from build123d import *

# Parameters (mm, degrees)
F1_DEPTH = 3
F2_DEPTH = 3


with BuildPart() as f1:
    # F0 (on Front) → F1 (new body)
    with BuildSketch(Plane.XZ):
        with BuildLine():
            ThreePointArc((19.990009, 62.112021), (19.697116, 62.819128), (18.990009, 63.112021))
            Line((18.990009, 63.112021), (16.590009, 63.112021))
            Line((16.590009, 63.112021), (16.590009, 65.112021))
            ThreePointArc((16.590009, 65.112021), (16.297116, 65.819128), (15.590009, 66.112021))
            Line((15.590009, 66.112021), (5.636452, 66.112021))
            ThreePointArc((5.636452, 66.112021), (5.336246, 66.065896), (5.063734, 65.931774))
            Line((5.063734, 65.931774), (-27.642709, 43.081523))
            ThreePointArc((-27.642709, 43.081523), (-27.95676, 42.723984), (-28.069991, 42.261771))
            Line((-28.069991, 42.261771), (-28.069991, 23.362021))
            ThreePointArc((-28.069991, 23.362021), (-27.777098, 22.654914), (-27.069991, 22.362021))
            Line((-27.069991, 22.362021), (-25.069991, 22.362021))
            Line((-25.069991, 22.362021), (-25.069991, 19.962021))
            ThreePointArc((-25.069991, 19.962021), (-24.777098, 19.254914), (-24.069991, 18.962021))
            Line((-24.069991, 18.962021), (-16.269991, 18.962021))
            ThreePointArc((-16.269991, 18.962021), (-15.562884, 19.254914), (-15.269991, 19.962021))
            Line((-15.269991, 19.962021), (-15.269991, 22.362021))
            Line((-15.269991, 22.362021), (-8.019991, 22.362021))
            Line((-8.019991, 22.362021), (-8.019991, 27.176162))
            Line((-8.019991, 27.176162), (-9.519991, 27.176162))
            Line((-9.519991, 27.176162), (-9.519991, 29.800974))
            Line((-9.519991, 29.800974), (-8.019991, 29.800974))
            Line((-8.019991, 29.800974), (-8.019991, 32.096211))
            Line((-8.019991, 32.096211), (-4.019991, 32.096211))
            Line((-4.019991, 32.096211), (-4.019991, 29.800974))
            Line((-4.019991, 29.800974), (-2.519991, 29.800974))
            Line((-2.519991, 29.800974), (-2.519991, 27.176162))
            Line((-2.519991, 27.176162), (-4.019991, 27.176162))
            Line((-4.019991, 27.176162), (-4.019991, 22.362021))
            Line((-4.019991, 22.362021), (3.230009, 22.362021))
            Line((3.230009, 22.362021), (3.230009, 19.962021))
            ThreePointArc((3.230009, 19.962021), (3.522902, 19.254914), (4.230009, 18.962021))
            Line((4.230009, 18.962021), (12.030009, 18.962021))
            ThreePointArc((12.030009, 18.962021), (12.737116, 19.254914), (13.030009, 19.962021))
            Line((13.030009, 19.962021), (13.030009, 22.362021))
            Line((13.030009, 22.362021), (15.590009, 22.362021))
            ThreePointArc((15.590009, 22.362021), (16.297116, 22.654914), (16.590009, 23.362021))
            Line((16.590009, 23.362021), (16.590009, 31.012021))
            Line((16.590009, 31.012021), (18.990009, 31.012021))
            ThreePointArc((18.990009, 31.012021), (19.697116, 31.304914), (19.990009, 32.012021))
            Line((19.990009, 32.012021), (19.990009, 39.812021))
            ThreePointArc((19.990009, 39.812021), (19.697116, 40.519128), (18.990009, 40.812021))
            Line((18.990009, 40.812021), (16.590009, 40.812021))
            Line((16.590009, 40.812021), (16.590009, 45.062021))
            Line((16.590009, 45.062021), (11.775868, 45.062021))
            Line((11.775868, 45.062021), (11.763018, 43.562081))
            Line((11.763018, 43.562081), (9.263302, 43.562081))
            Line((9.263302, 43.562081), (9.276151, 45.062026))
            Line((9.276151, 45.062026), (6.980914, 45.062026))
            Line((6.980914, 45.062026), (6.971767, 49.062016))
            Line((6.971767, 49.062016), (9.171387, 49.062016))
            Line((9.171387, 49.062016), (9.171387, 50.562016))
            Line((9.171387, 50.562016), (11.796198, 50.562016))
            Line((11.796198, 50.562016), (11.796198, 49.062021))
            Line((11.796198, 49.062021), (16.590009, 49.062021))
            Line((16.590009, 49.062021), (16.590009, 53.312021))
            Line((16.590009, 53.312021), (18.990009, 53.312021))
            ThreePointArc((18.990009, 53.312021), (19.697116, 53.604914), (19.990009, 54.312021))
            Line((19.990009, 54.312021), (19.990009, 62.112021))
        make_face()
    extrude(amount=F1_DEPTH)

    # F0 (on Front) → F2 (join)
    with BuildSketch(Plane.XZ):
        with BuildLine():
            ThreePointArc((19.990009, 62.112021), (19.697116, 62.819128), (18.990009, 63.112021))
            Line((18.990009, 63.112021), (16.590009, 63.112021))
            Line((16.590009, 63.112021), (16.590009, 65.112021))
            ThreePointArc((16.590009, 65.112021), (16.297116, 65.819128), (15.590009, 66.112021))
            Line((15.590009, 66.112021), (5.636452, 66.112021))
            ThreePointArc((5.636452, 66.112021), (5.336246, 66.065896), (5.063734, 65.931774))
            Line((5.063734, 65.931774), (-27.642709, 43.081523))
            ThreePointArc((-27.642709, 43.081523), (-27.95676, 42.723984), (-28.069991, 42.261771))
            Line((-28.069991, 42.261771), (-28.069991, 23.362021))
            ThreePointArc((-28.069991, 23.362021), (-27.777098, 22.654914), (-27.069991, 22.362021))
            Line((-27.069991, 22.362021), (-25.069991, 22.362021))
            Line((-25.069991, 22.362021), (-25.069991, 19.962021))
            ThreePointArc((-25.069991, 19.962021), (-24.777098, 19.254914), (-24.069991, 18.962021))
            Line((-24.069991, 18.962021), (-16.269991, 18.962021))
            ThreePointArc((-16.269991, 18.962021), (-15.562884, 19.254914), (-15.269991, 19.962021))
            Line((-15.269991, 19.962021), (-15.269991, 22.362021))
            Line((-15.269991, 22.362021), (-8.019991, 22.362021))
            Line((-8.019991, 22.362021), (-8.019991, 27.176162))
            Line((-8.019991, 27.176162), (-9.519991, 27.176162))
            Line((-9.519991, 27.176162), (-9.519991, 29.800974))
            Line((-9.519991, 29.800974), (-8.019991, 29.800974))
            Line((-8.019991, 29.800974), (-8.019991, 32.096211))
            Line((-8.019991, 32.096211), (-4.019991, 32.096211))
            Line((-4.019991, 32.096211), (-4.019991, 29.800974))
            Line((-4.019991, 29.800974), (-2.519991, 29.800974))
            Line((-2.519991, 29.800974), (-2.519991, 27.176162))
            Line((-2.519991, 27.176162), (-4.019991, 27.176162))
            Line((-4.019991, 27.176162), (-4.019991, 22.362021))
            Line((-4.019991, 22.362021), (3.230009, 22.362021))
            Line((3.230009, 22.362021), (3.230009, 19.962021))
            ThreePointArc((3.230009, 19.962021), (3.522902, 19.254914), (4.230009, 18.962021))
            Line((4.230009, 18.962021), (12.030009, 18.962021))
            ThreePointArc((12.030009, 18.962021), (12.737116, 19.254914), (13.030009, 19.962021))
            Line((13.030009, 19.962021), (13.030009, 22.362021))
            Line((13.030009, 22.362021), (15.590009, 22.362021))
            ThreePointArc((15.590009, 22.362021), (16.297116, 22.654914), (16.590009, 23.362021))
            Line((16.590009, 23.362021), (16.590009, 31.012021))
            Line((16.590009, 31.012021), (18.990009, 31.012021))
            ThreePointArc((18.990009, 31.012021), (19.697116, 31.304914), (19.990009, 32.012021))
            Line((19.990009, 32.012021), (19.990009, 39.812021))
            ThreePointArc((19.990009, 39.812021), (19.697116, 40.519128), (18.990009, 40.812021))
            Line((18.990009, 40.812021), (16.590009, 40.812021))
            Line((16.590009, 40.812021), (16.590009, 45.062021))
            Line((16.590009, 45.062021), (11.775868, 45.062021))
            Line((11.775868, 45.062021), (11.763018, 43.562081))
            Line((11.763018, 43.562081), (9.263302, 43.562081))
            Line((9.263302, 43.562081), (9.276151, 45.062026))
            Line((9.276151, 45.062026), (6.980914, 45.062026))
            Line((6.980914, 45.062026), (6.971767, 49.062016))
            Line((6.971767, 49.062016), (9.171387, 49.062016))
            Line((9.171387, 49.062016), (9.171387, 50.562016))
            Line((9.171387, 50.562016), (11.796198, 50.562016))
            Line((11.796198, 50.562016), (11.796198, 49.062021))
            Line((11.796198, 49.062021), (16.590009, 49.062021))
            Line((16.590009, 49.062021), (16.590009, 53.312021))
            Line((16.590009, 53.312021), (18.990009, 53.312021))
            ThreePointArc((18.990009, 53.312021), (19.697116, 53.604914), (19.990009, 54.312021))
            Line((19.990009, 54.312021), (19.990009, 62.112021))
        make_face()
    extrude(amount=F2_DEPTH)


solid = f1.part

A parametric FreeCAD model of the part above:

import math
import FreeCAD as App
import Part
import Sketcher
from FreeCAD import Vector

doc = App.newDocument("Part")
body = doc.addObject("PartDesign::Body", "Body")

# Sketch on XZ plane
sketch1 = body.newObject("Sketcher::SketchObject", "Sketch")
sketch1.AttachmentSupport = (doc.getObject("XZ_Plane"), [""])
sketch1.MapMode = "FlatFace"
sketch1.addGeometry([
    Part.ArcOfCircle(Part.Circle(Vector(18.99001, 62.112022, 0), Vector(0, 0, 1), 0.999999), math.radians(-0.000043), math.radians(90.000043)),  # 0
    Part.LineSegment(Vector(18.990009, 63.112021, 0), Vector(16.590009, 63.112021, 0)),  # 1
    Part.LineSegment(Vector(16.590009, 63.112021, 0), Vector(16.590009, 65.112021, 0)),  # 2
    Part.ArcOfCircle(Part.Circle(Vector(15.59001, 65.112022, 0), Vector(0, 0, 1), 0.999999), math.radians(-0.000043), math.radians(90.000043)),  # 3
    Part.LineSegment(Vector(15.590009, 66.112021, 0), Vector(5.636452, 66.112021, 0)),  # 4
    Part.ArcOfCircle(Part.Circle(Vector(5.636449, 65.112028, 0), Vector(0, 0, 1), 0.999993), math.radians(89.999826), math.radians(124.940053)),  # 5
    Part.LineSegment(Vector(5.063734, 65.931774, 0), Vector(-27.642709, 43.081523, 0)),  # 6
    Part.ArcOfCircle(Part.Circle(Vector(-27.069993, 42.261772, 0), Vector(0, 0, 1), 0.999998), math.radians(124.939915), math.radians(180.000037)),  # 7
    Part.LineSegment(Vector(-28.069991, 42.261771, 0), Vector(-28.069991, 23.362021, 0)),  # 8
    Part.ArcOfCircle(Part.Circle(Vector(-27.069992, 23.36202, 0), Vector(0, 0, 1), 0.999999), math.radians(179.999957), math.radians(270.000043)),  # 9
    Part.LineSegment(Vector(-27.069991, 22.362021, 0), Vector(-25.069991, 22.362021, 0)),  # 10
    Part.LineSegment(Vector(-25.069991, 22.362021, 0), Vector(-25.069991, 19.962021, 0)),  # 11
    Part.ArcOfCircle(Part.Circle(Vector(-24.069992, 19.96202, 0), Vector(0, 0, 1), 0.999999), math.radians(179.999957), math.radians(270.000043)),  # 12
    Part.LineSegment(Vector(-24.069991, 18.962021, 0), Vector(-16.269991, 18.962021, 0)),  # 13
    Part.ArcOfCircle(Part.Circle(Vector(-16.26999, 19.96202, 0), Vector(0, 0, 1), 0.999999), math.radians(-90.000043), math.radians(0.000043)),  # 14
    Part.LineSegment(Vector(-15.269991, 19.962021, 0), Vector(-15.269991, 22.362021, 0)),  # 15
    Part.LineSegment(Vector(-15.269991, 22.362021, 0), Vector(-8.019991, 22.362021, 0)),  # 16
    Part.LineSegment(Vector(-8.019991, 22.362021, 0), Vector(-8.019991, 27.176162, 0)),  # 17
    Part.LineSegment(Vector(-8.019991, 27.176162, 0), Vector(-9.519991, 27.176162, 0)),  # 18
    Part.LineSegment(Vector(-9.519991, 27.176162, 0), Vector(-9.519991, 29.800974, 0)),  # 19
    Part.LineSegment(Vector(-9.519991, 29.800974, 0), Vector(-8.019991, 29.800974, 0)),  # 20
    Part.LineSegment(Vector(-8.019991, 29.800974, 0), Vector(-8.019991, 32.096211, 0)),  # 21
    Part.LineSegment(Vector(-8.019991, 32.096211, 0), Vector(-4.019991, 32.096211, 0)),  # 22
    Part.LineSegment(Vector(-4.019991, 32.096211, 0), Vector(-4.019991, 29.800974, 0)),  # 23
    Part.LineSegment(Vector(-4.019991, 29.800974, 0), Vector(-2.519991, 29.800974, 0)),  # 24
    Part.LineSegment(Vector(-2.519991, 29.800974, 0), Vector(-2.519991, 27.176162, 0)),  # 25
    Part.LineSegment(Vector(-2.519991, 27.176162, 0), Vector(-4.019991, 27.176162, 0)),  # 26
    Part.LineSegment(Vector(-4.019991, 27.176162, 0), Vector(-4.019991, 22.362021, 0)),  # 27
    Part.LineSegment(Vector(-4.019991, 22.362021, 0), Vector(3.230009, 22.362021, 0)),  # 28
    Part.LineSegment(Vector(3.230009, 22.362021, 0), Vector(3.230009, 19.962021, 0)),  # 29
    Part.ArcOfCircle(Part.Circle(Vector(4.230008, 19.96202, 0), Vector(0, 0, 1), 0.999999), math.radians(179.999957), math.radians(270.000043)),  # 30
    Part.LineSegment(Vector(4.230009, 18.962021, 0), Vector(12.030009, 18.962021, 0)),  # 31
    Part.ArcOfCircle(Part.Circle(Vector(12.03001, 19.96202, 0), Vector(0, 0, 1), 0.999999), math.radians(-90.000043), math.radians(0.000043)),  # 32
    Part.LineSegment(Vector(13.030009, 19.962021, 0), Vector(13.030009, 22.362021, 0)),  # 33
    Part.LineSegment(Vector(13.030009, 22.362021, 0), Vector(15.590009, 22.362021, 0)),  # 34
    Part.ArcOfCircle(Part.Circle(Vector(15.59001, 23.36202, 0), Vector(0, 0, 1), 0.999999), math.radians(-90.000043), math.radians(0.000043)),  # 35
    Part.LineSegment(Vector(16.590009, 23.362021, 0), Vector(16.590009, 31.012021, 0)),  # 36
    Part.LineSegment(Vector(16.590009, 31.012021, 0), Vector(18.990009, 31.012021, 0)),  # 37
    Part.ArcOfCircle(Part.Circle(Vector(18.99001, 32.01202, 0), Vector(0, 0, 1), 0.999999), math.radians(-90.000043), math.radians(0.000043)),  # 38
    Part.LineSegment(Vector(19.990009, 32.012021, 0), Vector(19.990009, 39.812021, 0)),  # 39
    Part.ArcOfCircle(Part.Circle(Vector(18.99001, 39.812022, 0), Vector(0, 0, 1), 0.999999), math.radians(-0.000043), math.radians(90.000043)),  # 40
    Part.LineSegment(Vector(18.990009, 40.812021, 0), Vector(16.590009, 40.812021, 0)),  # 41
    Part.LineSegment(Vector(16.590009, 40.812021, 0), Vector(16.590009, 45.062021, 0)),  # 42
    Part.LineSegment(Vector(16.590009, 45.062021, 0), Vector(11.775868, 45.062021, 0)),  # 43
    Part.LineSegment(Vector(11.775868, 45.062021, 0), Vector(11.763018, 43.562081, 0)),  # 44
    Part.LineSegment(Vector(11.763018, 43.562081, 0), Vector(9.263302, 43.562081, 0)),  # 45
    Part.LineSegment(Vector(9.263302, 43.562081, 0), Vector(9.276151, 45.062026, 0)),  # 46
    Part.LineSegment(Vector(9.276151, 45.062026, 0), Vector(6.980914, 45.062026, 0)),  # 47
    Part.LineSegment(Vector(6.980914, 45.062026, 0), Vector(6.971767, 49.062016, 0)),  # 48
    Part.LineSegment(Vector(6.971767, 49.062016, 0), Vector(9.171387, 49.062016, 0)),  # 49
    Part.LineSegment(Vector(9.171387, 49.062016, 0), Vector(9.171387, 50.562016, 0)),  # 50
    Part.LineSegment(Vector(9.171387, 50.562016, 0), Vector(11.796198, 50.562016, 0)),  # 51
    Part.LineSegment(Vector(11.796198, 50.562016, 0), Vector(11.796198, 49.062021, 0)),  # 52
    Part.LineSegment(Vector(11.796198, 49.062021, 0), Vector(16.590009, 49.062021, 0)),  # 53
    Part.LineSegment(Vector(16.590009, 49.062021, 0), Vector(16.590009, 53.312021, 0)),  # 54
    Part.LineSegment(Vector(16.590009, 53.312021, 0), Vector(18.990009, 53.312021, 0)),  # 55
    Part.ArcOfCircle(Part.Circle(Vector(18.99001, 54.31202, 0), Vector(0, 0, 1), 0.999999), math.radians(-90.000043), math.radians(0.000043)),  # 56
    Part.LineSegment(Vector(19.990009, 54.312021, 0), Vector(19.990009, 62.112021, 0)),  # 57
], False)
sketch1.addConstraint([
    Sketcher.Constraint("Tangent", 0, 2, 1, 1),
    Sketcher.Constraint("Coincident", 1, 2, 2, 1),
    Sketcher.Constraint("Tangent", 2, 2, 3, 1),
    Sketcher.Constraint("Tangent", 3, 2, 4, 1),
    Sketcher.Constraint("Coincident", 4, 2, 5, 1),
    Sketcher.Constraint("Tangent", 5, 2, 6, 1),
    Sketcher.Constraint("Tangent", 6, 2, 7, 1),
    Sketcher.Constraint("Tangent", 7, 2, 8, 1),
    Sketcher.Constraint("Tangent", 8, 2, 9, 1),
    Sketcher.Constraint("Tangent", 9, 2, 10, 1),
    Sketcher.Constraint("Coincident", 10, 2, 11, 1),
    Sketcher.Constraint("Tangent", 11, 2, 12, 1),
    Sketcher.Constraint("Tangent", 12, 2, 13, 1),
    Sketcher.Constraint("Tangent", 13, 2, 14, 1),
    Sketcher.Constraint("Tangent", 14, 2, 15, 1),
    Sketcher.Constraint("Coincident", 15, 2, 16, 1),
    Sketcher.Constraint("Coincident", 16, 2, 17, 1),
    Sketcher.Constraint("Coincident", 17, 2, 18, 1),
    Sketcher.Constraint("Coincident", 18, 2, 19, 1),
    Sketcher.Constraint("Coincident", 19, 2, 20, 1),
    Sketcher.Constraint("Coincident", 20, 2, 21, 1),
    Sketcher.Constraint("Coincident", 21, 2, 22, 1),
    Sketcher.Constraint("Coincident", 22, 2, 23, 1),
    Sketcher.Constraint("Coincident", 23, 2, 24, 1),
    Sketcher.Constraint("Coincident", 24, 2, 25, 1),
    Sketcher.Constraint("Coincident", 25, 2, 26, 1),
    Sketcher.Constraint("Coincident", 26, 2, 27, 1),
    Sketcher.Constraint("Coincident", 27, 2, 28, 1),
    Sketcher.Constraint("Coincident", 28, 2, 29, 1),
    Sketcher.Constraint("Tangent", 29, 2, 30, 1),
    Sketcher.Constraint("Tangent", 30, 2, 31, 1),
    Sketcher.Constraint("Tangent", 31, 2, 32, 1),
    Sketcher.Constraint("Tangent", 32, 2, 33, 1),
    Sketcher.Constraint("Coincident", 33, 2, 34, 1),
    Sketcher.Constraint("Tangent", 34, 2, 35, 1),
    Sketcher.Constraint("Tangent", 35, 2, 36, 1),
    Sketcher.Constraint("Coincident", 36, 2, 37, 1),
    Sketcher.Constraint("Tangent", 37, 2, 38, 1),
    Sketcher.Constraint("Tangent", 38, 2, 39, 1),
    Sketcher.Constraint("Tangent", 39, 2, 40, 1),
    Sketcher.Constraint("Tangent", 40, 2, 41, 1),
    Sketcher.Constraint("Coincident", 41, 2, 42, 1),
    Sketcher.Constraint("Coincident", 42, 2, 43, 1),
    Sketcher.Constraint("Coincident", 43, 2, 44, 1),
    Sketcher.Constraint("Coincident", 44, 2, 45, 1),
    Sketcher.Constraint("Coincident", 45, 2, 46, 1),
    Sketcher.Constraint("Coincident", 46, 2, 47, 1),
    Sketcher.Constraint("Coincident", 47, 2, 48, 1),
    Sketcher.Constraint("Coincident", 48, 2, 49, 1),
    Sketcher.Constraint("Coincident", 49, 2, 50, 1),
    Sketcher.Constraint("Coincident", 50, 2, 51, 1),
    Sketcher.Constraint("Coincident", 51, 2, 52, 1),
    Sketcher.Constraint("Coincident", 52, 2, 53, 1),
    Sketcher.Constraint("Coincident", 53, 2, 54, 1),
    Sketcher.Constraint("Coincident", 54, 2, 55, 1),
    Sketcher.Constraint("Tangent", 55, 2, 56, 1),
    Sketcher.Constraint("Tangent", 56, 2, 57, 1),
    Sketcher.Constraint("Tangent", 57, 2, 0, 1),
    Sketcher.Constraint("Horizontal", 1),
    Sketcher.Constraint("Vertical", 2),
    Sketcher.Constraint("Horizontal", 4),
    Sketcher.Constraint("Vertical", 8),
    Sketcher.Constraint("Horizontal", 10),
    Sketcher.Constraint("Vertical", 11),
    Sketcher.Constraint("Horizontal", 13),
    Sketcher.Constraint("Vertical", 15),
    Sketcher.Constraint("Horizontal", 16),
    Sketcher.Constraint("Vertical", 17),
    Sketcher.Constraint("Horizontal", 18),
    Sketcher.Constraint("Vertical", 19),
    Sketcher.Constraint("Horizontal", 20),
    Sketcher.Constraint("Vertical", 21),
    Sketcher.Constraint("Horizontal", 22),
    Sketcher.Constraint("Vertical", 23),
    Sketcher.Constraint("Horizontal", 24),
    Sketcher.Constraint("Vertical", 25),
    Sketcher.Constraint("Horizontal", 26),
    Sketcher.Constraint("Vertical", 27),
    Sketcher.Constraint("Horizontal", 28),
    Sketcher.Constraint("Vertical", 29),
    Sketcher.Constraint("Horizontal", 31),
    Sketcher.Constraint("Vertical", 33),
    Sketcher.Constraint("Horizontal", 34),
    Sketcher.Constraint("Vertical", 36),
    Sketcher.Constraint("Horizontal", 37),
    Sketcher.Constraint("Vertical", 39),
    Sketcher.Constraint("Horizontal", 41),
    Sketcher.Constraint("Vertical", 42),
    Sketcher.Constraint("Horizontal", 43),
    Sketcher.Constraint("Horizontal", 45),
    Sketcher.Constraint("Horizontal", 47),
    Sketcher.Constraint("Horizontal", 49),
    Sketcher.Constraint("Vertical", 50),
    Sketcher.Constraint("Horizontal", 51),
    Sketcher.Constraint("Vertical", 52),
    Sketcher.Constraint("Horizontal", 53),
    Sketcher.Constraint("Vertical", 54),
    Sketcher.Constraint("Horizontal", 55),
    Sketcher.Constraint("Vertical", 57),
    Sketcher.Constraint("Equal", 0, 3),
    Sketcher.Constraint("Equal", 3, 7),
    Sketcher.Constraint("Equal", 7, 9),
    Sketcher.Constraint("Equal", 9, 12),
    Sketcher.Constraint("Equal", 12, 14),
    Sketcher.Constraint("Equal", 14, 30),
    Sketcher.Constraint("Equal", 30, 32),
    Sketcher.Constraint("Equal", 32, 35),
    Sketcher.Constraint("Equal", 35, 38),
    Sketcher.Constraint("Equal", 38, 40),
    Sketcher.Constraint("Equal", 40, 56),
    Sketcher.Constraint("Parallel", 44, 46),
    Sketcher.Constraint("Horizontal", 14, 3, 30, 3),
    Sketcher.Constraint("Horizontal", 9, 3, 35, 3),
    Sketcher.Constraint("Horizontal", 10, 2, 15, 2),
    Sketcher.Constraint("Horizontal", 20, 2, 23, 2),
    Sketcher.Constraint("Horizontal", 18, 2, 25, 2),
    Sketcher.Constraint("Horizontal", 16, 2, 27, 2),
    Sketcher.Constraint("Vertical", 3, 3, 35, 3),
    Sketcher.Constraint("Vertical", 0, 3, 38, 3),
    Sketcher.Constraint("Vertical", 17, 2, 20, 2),
    Sketcher.Constraint("Vertical", 23, 2, 26, 2),
    Sketcher.Constraint("Vertical", 36, 2, 41, 2),
    Sketcher.Constraint("Vertical", 42, 2, 53, 2),
    Sketcher.Constraint("Equal", 20, 24),
    Sketcher.Constraint("Equal", 16, 28),
    Sketcher.Constraint("Equal", 13, 31),
    Sketcher.Constraint("Equal", 10, 2),
    Sketcher.Constraint("Equal", 55, 11),
    Sketcher.Constraint("Equal", 43, 17),
    Sketcher.Constraint("Equal", 51, 19),
    Sketcher.Constraint("Equal", 47, 21),
    Sketcher.Constraint("Equal", 31, 39),
    Sketcher.Constraint("Equal", 26, 50),
    Sketcher.Constraint("Equal", 42, 54),
    Sketcher.Constraint("Equal", 39, 57),
    Sketcher.Constraint("Radius", 0, 0.999999),
    Sketcher.Constraint("DistanceX", 10, 1, 10, 2, 2.0),
    Sketcher.Constraint("DistanceX", 22, 1, 22, 2, 4.0),
    Sketcher.Constraint("Distance", 48, 4.0),
    Sketcher.Constraint("DistanceX", 1, 2, 1, 1, 2.4),
    Sketcher.Constraint("DistanceX", 13, 1, 13, 2, 7.8),
    Sketcher.Constraint("DistanceX", 18, 2, 18, 1, 1.5),
    Sketcher.Constraint("Distance", 46, 1.5),
    Sketcher.Constraint("DistanceX", 16, 1, 16, 2, 7.25),
    Sketcher.Constraint("DistanceX", 34, 1, 34, 2, 2.56),
    Sketcher.Constraint("DistanceY", 36, 1, 36, 2, 7.65),
    Sketcher.Constraint("DistanceY", 42, 1, 42, 2, 4.25),
    Sketcher.Constraint("Radius", 5, 0.999993),
    Sketcher.Constraint("DistanceX", 43, 2, 43, 1, 4.814141),
    Sketcher.Constraint("DistanceX", 49, 1, 49, 2, 2.19962),
    Sketcher.Constraint("DistanceX", 51, 1, 51, 2, 2.624811),
    Sketcher.Constraint("DistanceX", 53, 1, 53, 2, 4.793811),
    Sketcher.Constraint("DistanceY", 8, 2, 8, 1, 18.89975),
    Sketcher.Constraint("DistanceX", 4, 2, 4, 1, 9.953557),
    Sketcher.Constraint("DistanceX", 45, 2, 45, 1, 2.499716),
    Sketcher.Constraint("DistanceX", 47, 2, 47, 1, 2.295237),
    Sketcher.Constraint("DistanceY", 52, 2, 52, 1, 1.499995),
    Sketcher.Constraint("DistanceX", -1, 1, 0, 3, 18.99001),
    Sketcher.Constraint("DistanceY", -1, 1, 0, 3, 62.112022),
    Sketcher.Constraint("DistanceX", -1, 1, 5, 3, 5.636449),
    Sketcher.Constraint("DistanceY", -1, 1, 7, 3, 42.261772),
    Sketcher.Constraint("DistanceX", -1, 1, 44, 2, 11.763018),
])
pad1 = body.newObject("PartDesign::Pad", "Pad")
pad1.Profile = sketch1
pad1.Length = 3

# Sketch on XZ plane
sketch2 = body.newObject("Sketcher::SketchObject", "Sketch001")
sketch2.AttachmentSupport = (doc.getObject("XZ_Plane"), [""])
sketch2.MapMode = "FlatFace"
sketch2.addGeometry([
    Part.ArcOfCircle(Part.Circle(Vector(18.99001, 62.112022, 0), Vector(0, 0, 1), 0.999999), math.radians(-0.000043), math.radians(90.000043)),  # 0
    Part.LineSegment(Vector(18.990009, 63.112021, 0), Vector(16.590009, 63.112021, 0)),  # 1
    Part.LineSegment(Vector(16.590009, 63.112021, 0), Vector(16.590009, 65.112021, 0)),  # 2
    Part.ArcOfCircle(Part.Circle(Vector(15.59001, 65.112022, 0), Vector(0, 0, 1), 0.999999), math.radians(-0.000043), math.radians(90.000043)),  # 3
    Part.LineSegment(Vector(15.590009, 66.112021, 0), Vector(5.636452, 66.112021, 0)),  # 4
    Part.ArcOfCircle(Part.Circle(Vector(5.636449, 65.112028, 0), Vector(0, 0, 1), 0.999993), math.radians(89.999826), math.radians(124.940053)),  # 5
    Part.LineSegment(Vector(5.063734, 65.931774, 0), Vector(-27.642709, 43.081523, 0)),  # 6
    Part.ArcOfCircle(Part.Circle(Vector(-27.069993, 42.261772, 0), Vector(0, 0, 1), 0.999998), math.radians(124.939915), math.radians(180.000037)),  # 7
    Part.LineSegment(Vector(-28.069991, 42.261771, 0), Vector(-28.069991, 23.362021, 0)),  # 8
    Part.ArcOfCircle(Part.Circle(Vector(-27.069992, 23.36202, 0), Vector(0, 0, 1), 0.999999), math.radians(179.999957), math.radians(270.000043)),  # 9
    Part.LineSegment(Vector(-27.069991, 22.362021, 0), Vector(-25.069991, 22.362021, 0)),  # 10
    Part.LineSegment(Vector(-25.069991, 22.362021, 0), Vector(-25.069991, 19.962021, 0)),  # 11
    Part.ArcOfCircle(Part.Circle(Vector(-24.069992, 19.96202, 0), Vector(0, 0, 1), 0.999999), math.radians(179.999957), math.radians(270.000043)),  # 12
    Part.LineSegment(Vector(-24.069991, 18.962021, 0), Vector(-16.269991, 18.962021, 0)),  # 13
    Part.ArcOfCircle(Part.Circle(Vector(-16.26999, 19.96202, 0), Vector(0, 0, 1), 0.999999), math.radians(-90.000043), math.radians(0.000043)),  # 14
    Part.LineSegment(Vector(-15.269991, 19.962021, 0), Vector(-15.269991, 22.362021, 0)),  # 15
    Part.LineSegment(Vector(-15.269991, 22.362021, 0), Vector(-8.019991, 22.362021, 0)),  # 16
    Part.LineSegment(Vector(-8.019991, 22.362021, 0), Vector(-8.019991, 27.176162, 0)),  # 17
    Part.LineSegment(Vector(-8.019991, 27.176162, 0), Vector(-9.519991, 27.176162, 0)),  # 18
    Part.LineSegment(Vector(-9.519991, 27.176162, 0), Vector(-9.519991, 29.800974, 0)),  # 19
    Part.LineSegment(Vector(-9.519991, 29.800974, 0), Vector(-8.019991, 29.800974, 0)),  # 20
    Part.LineSegment(Vector(-8.019991, 29.800974, 0), Vector(-8.019991, 32.096211, 0)),  # 21
    Part.LineSegment(Vector(-8.019991, 32.096211, 0), Vector(-4.019991, 32.096211, 0)),  # 22
    Part.LineSegment(Vector(-4.019991, 32.096211, 0), Vector(-4.019991, 29.800974, 0)),  # 23
    Part.LineSegment(Vector(-4.019991, 29.800974, 0), Vector(-2.519991, 29.800974, 0)),  # 24
    Part.LineSegment(Vector(-2.519991, 29.800974, 0), Vector(-2.519991, 27.176162, 0)),  # 25
    Part.LineSegment(Vector(-2.519991, 27.176162, 0), Vector(-4.019991, 27.176162, 0)),  # 26
    Part.LineSegment(Vector(-4.019991, 27.176162, 0), Vector(-4.019991, 22.362021, 0)),  # 27
    Part.LineSegment(Vector(-4.019991, 22.362021, 0), Vector(3.230009, 22.362021, 0)),  # 28
    Part.LineSegment(Vector(3.230009, 22.362021, 0), Vector(3.230009, 19.962021, 0)),  # 29
    Part.ArcOfCircle(Part.Circle(Vector(4.230008, 19.96202, 0), Vector(0, 0, 1), 0.999999), math.radians(179.999957), math.radians(270.000043)),  # 30
    Part.LineSegment(Vector(4.230009, 18.962021, 0), Vector(12.030009, 18.962021, 0)),  # 31
    Part.ArcOfCircle(Part.Circle(Vector(12.03001, 19.96202, 0), Vector(0, 0, 1), 0.999999), math.radians(-90.000043), math.radians(0.000043)),  # 32
    Part.LineSegment(Vector(13.030009, 19.962021, 0), Vector(13.030009, 22.362021, 0)),  # 33
    Part.LineSegment(Vector(13.030009, 22.362021, 0), Vector(15.590009, 22.362021, 0)),  # 34
    Part.ArcOfCircle(Part.Circle(Vector(15.59001, 23.36202, 0), Vector(0, 0, 1), 0.999999), math.radians(-90.000043), math.radians(0.000043)),  # 35
    Part.LineSegment(Vector(16.590009, 23.362021, 0), Vector(16.590009, 31.012021, 0)),  # 36
    Part.LineSegment(Vector(16.590009, 31.012021, 0), Vector(18.990009, 31.012021, 0)),  # 37
    Part.ArcOfCircle(Part.Circle(Vector(18.99001, 32.01202, 0), Vector(0, 0, 1), 0.999999), math.radians(-90.000043), math.radians(0.000043)),  # 38
    Part.LineSegment(Vector(19.990009, 32.012021, 0), Vector(19.990009, 39.812021, 0)),  # 39
    Part.ArcOfCircle(Part.Circle(Vector(18.99001, 39.812022, 0), Vector(0, 0, 1), 0.999999), math.radians(-0.000043), math.radians(90.000043)),  # 40
    Part.LineSegment(Vector(18.990009, 40.812021, 0), Vector(16.590009, 40.812021, 0)),  # 41
    Part.LineSegment(Vector(16.590009, 40.812021, 0), Vector(16.590009, 45.062021, 0)),  # 42
    Part.LineSegment(Vector(16.590009, 45.062021, 0), Vector(11.775868, 45.062021, 0)),  # 43
    Part.LineSegment(Vector(11.775868, 45.062021, 0), Vector(11.763018, 43.562081, 0)),  # 44
    Part.LineSegment(Vector(11.763018, 43.562081, 0), Vector(9.263302, 43.562081, 0)),  # 45
    Part.LineSegment(Vector(9.263302, 43.562081, 0), Vector(9.276151, 45.062026, 0)),  # 46
    Part.LineSegment(Vector(9.276151, 45.062026, 0), Vector(6.980914, 45.062026, 0)),  # 47
    Part.LineSegment(Vector(6.980914, 45.062026, 0), Vector(6.971767, 49.062016, 0)),  # 48
    Part.LineSegment(Vector(6.971767, 49.062016, 0), Vector(9.171387, 49.062016, 0)),  # 49
    Part.LineSegment(Vector(9.171387, 49.062016, 0), Vector(9.171387, 50.562016, 0)),  # 50
    Part.LineSegment(Vector(9.171387, 50.562016, 0), Vector(11.796198, 50.562016, 0)),  # 51
    Part.LineSegment(Vector(11.796198, 50.562016, 0), Vector(11.796198, 49.062021, 0)),  # 52
    Part.LineSegment(Vector(11.796198, 49.062021, 0), Vector(16.590009, 49.062021, 0)),  # 53
    Part.LineSegment(Vector(16.590009, 49.062021, 0), Vector(16.590009, 53.312021, 0)),  # 54
    Part.LineSegment(Vector(16.590009, 53.312021, 0), Vector(18.990009, 53.312021, 0)),  # 55
    Part.ArcOfCircle(Part.Circle(Vector(18.99001, 54.31202, 0), Vector(0, 0, 1), 0.999999), math.radians(-90.000043), math.radians(0.000043)),  # 56
    Part.LineSegment(Vector(19.990009, 54.312021, 0), Vector(19.990009, 62.112021, 0)),  # 57
], False)
sketch2.addConstraint([
    Sketcher.Constraint("Tangent", 0, 2, 1, 1),
    Sketcher.Constraint("Coincident", 1, 2, 2, 1),
    Sketcher.Constraint("Tangent", 2, 2, 3, 1),
    Sketcher.Constraint("Tangent", 3, 2, 4, 1),
    Sketcher.Constraint("Coincident", 4, 2, 5, 1),
    Sketcher.Constraint("Tangent", 5, 2, 6, 1),
    Sketcher.Constraint("Tangent", 6, 2, 7, 1),
    Sketcher.Constraint("Tangent", 7, 2, 8, 1),
    Sketcher.Constraint("Tangent", 8, 2, 9, 1),
    Sketcher.Constraint("Tangent", 9, 2, 10, 1),
    Sketcher.Constraint("Coincident", 10, 2, 11, 1),
    Sketcher.Constraint("Tangent", 11, 2, 12, 1),
    Sketcher.Constraint("Tangent", 12, 2, 13, 1),
    Sketcher.Constraint("Tangent", 13, 2, 14, 1),
    Sketcher.Constraint("Tangent", 14, 2, 15, 1),
    Sketcher.Constraint("Coincident", 15, 2, 16, 1),
    Sketcher.Constraint("Coincident", 16, 2, 17, 1),
    Sketcher.Constraint("Coincident", 17, 2, 18, 1),
    Sketcher.Constraint("Coincident", 18, 2, 19, 1),
    Sketcher.Constraint("Coincident", 19, 2, 20, 1),
    Sketcher.Constraint("Coincident", 20, 2, 21, 1),
    Sketcher.Constraint("Coincident", 21, 2, 22, 1),
    Sketcher.Constraint("Coincident", 22, 2, 23, 1),
    Sketcher.Constraint("Coincident", 23, 2, 24, 1),
    Sketcher.Constraint("Coincident", 24, 2, 25, 1),
    Sketcher.Constraint("Coincident", 25, 2, 26, 1),
    Sketcher.Constraint("Coincident", 26, 2, 27, 1),
    Sketcher.Constraint("Coincident", 27, 2, 28, 1),
    Sketcher.Constraint("Coincident", 28, 2, 29, 1),
    Sketcher.Constraint("Tangent", 29, 2, 30, 1),
    Sketcher.Constraint("Tangent", 30, 2, 31, 1),
    Sketcher.Constraint("Tangent", 31, 2, 32, 1),
    Sketcher.Constraint("Tangent", 32, 2, 33, 1),
    Sketcher.Constraint("Coincident", 33, 2, 34, 1),
    Sketcher.Constraint("Tangent", 34, 2, 35, 1),
    Sketcher.Constraint("Tangent", 35, 2, 36, 1),
    Sketcher.Constraint("Coincident", 36, 2, 37, 1),
    Sketcher.Constraint("Tangent", 37, 2, 38, 1),
    Sketcher.Constraint("Tangent", 38, 2, 39, 1),
    Sketcher.Constraint("Tangent", 39, 2, 40, 1),
    Sketcher.Constraint("Tangent", 40, 2, 41, 1),
    Sketcher.Constraint("Coincident", 41, 2, 42, 1),
    Sketcher.Constraint("Coincident", 42, 2, 43, 1),
    Sketcher.Constraint("Coincident", 43, 2, 44, 1),
    Sketcher.Constraint("Coincident", 44, 2, 45, 1),
    Sketcher.Constraint("Coincident", 45, 2, 46, 1),
    Sketcher.Constraint("Coincident", 46, 2, 47, 1),
    Sketcher.Constraint("Coincident", 47, 2, 48, 1),
    Sketcher.Constraint("Coincident", 48, 2, 49, 1),
    Sketcher.Constraint("Coincident", 49, 2, 50, 1),
    Sketcher.Constraint("Coincident", 50, 2, 51, 1),
    Sketcher.Constraint("Coincident", 51, 2, 52, 1),
    Sketcher.Constraint("Coincident", 52, 2, 53, 1),
    Sketcher.Constraint("Coincident", 53, 2, 54, 1),
    Sketcher.Constraint("Coincident", 54, 2, 55, 1),
    Sketcher.Constraint("Tangent", 55, 2, 56, 1),
    Sketcher.Constraint("Tangent", 56, 2, 57, 1),
    Sketcher.Constraint("Tangent", 57, 2, 0, 1),
    Sketcher.Constraint("Horizontal", 1),
    Sketcher.Constraint("Vertical", 2),
    Sketcher.Constraint("Horizontal", 4),
    Sketcher.Constraint("Vertical", 8),
    Sketcher.Constraint("Horizontal", 10),
    Sketcher.Constraint("Vertical", 11),
    Sketcher.Constraint("Horizontal", 13),
    Sketcher.Constraint("Vertical", 15),
    Sketcher.Constraint("Horizontal", 16),
    Sketcher.Constraint("Vertical", 17),
    Sketcher.Constraint("Horizontal", 18),
    Sketcher.Constraint("Vertical", 19),
    Sketcher.Constraint("Horizontal", 20),
    Sketcher.Constraint("Vertical", 21),
    Sketcher.Constraint("Horizontal", 22),
    Sketcher.Constraint("Vertical", 23),
    Sketcher.Constraint("Horizontal", 24),
    Sketcher.Constraint("Vertical", 25),
    Sketcher.Constraint("Horizontal", 26),
    Sketcher.Constraint("Vertical", 27),
    Sketcher.Constraint("Horizontal", 28),
    Sketcher.Constraint("Vertical", 29),
    Sketcher.Constraint("Horizontal", 31),
    Sketcher.Constraint("Vertical", 33),
    Sketcher.Constraint("Horizontal", 34),
    Sketcher.Constraint("Vertical", 36),
    Sketcher.Constraint("Horizontal", 37),
    Sketcher.Constraint("Vertical", 39),
    Sketcher.Constraint("Horizontal", 41),
    Sketcher.Constraint("Vertical", 42),
    Sketcher.Constraint("Horizontal", 43),
    Sketcher.Constraint("Horizontal", 45),
    Sketcher.Constraint("Horizontal", 47),
    Sketcher.Constraint("Horizontal", 49),
    Sketcher.Constraint("Vertical", 50),
    Sketcher.Constraint("Horizontal", 51),
    Sketcher.Constraint("Vertical", 52),
    Sketcher.Constraint("Horizontal", 53),
    Sketcher.Constraint("Vertical", 54),
    Sketcher.Constraint("Horizontal", 55),
    Sketcher.Constraint("Vertical", 57),
    Sketcher.Constraint("Equal", 0, 3),
    Sketcher.Constraint("Equal", 3, 7),
    Sketcher.Constraint("Equal", 7, 9),
    Sketcher.Constraint("Equal", 9, 12),
    Sketcher.Constraint("Equal", 12, 14),
    Sketcher.Constraint("Equal", 14, 30),
    Sketcher.Constraint("Equal", 30, 32),
    Sketcher.Constraint("Equal", 32, 35),
    Sketcher.Constraint("Equal", 35, 38),
    Sketcher.Constraint("Equal", 38, 40),
    Sketcher.Constraint("Equal", 40, 56),
    Sketcher.Constraint("Parallel", 44, 46),
    Sketcher.Constraint("Horizontal", 14, 3, 30, 3),
    Sketcher.Constraint("Horizontal", 9, 3, 35, 3),
    Sketcher.Constraint("Horizontal", 10, 2, 15, 2),
    Sketcher.Constraint("Horizontal", 20, 2, 23, 2),
    Sketcher.Constraint("Horizontal", 18, 2, 25, 2),
    Sketcher.Constraint("Horizontal", 16, 2, 27, 2),
    Sketcher.Constraint("Vertical", 3, 3, 35, 3),
    Sketcher.Constraint("Vertical", 0, 3, 38, 3),
    Sketcher.Constraint("Vertical", 17, 2, 20, 2),
    Sketcher.Constraint("Vertical", 23, 2, 26, 2),
    Sketcher.Constraint("Vertical", 36, 2, 41, 2),
    Sketcher.Constraint("Vertical", 42, 2, 53, 2),
    Sketcher.Constraint("Equal", 20, 24),
    Sketcher.Constraint("Equal", 16, 28),
    Sketcher.Constraint("Equal", 13, 31),
    Sketcher.Constraint("Equal", 10, 2),
    Sketcher.Constraint("Equal", 55, 11),
    Sketcher.Constraint("Equal", 43, 17),
    Sketcher.Constraint("Equal", 51, 19),
    Sketcher.Constraint("Equal", 47, 21),
    Sketcher.Constraint("Equal", 31, 39),
    Sketcher.Constraint("Equal", 26, 50),
    Sketcher.Constraint("Equal", 42, 54),
    Sketcher.Constraint("Equal", 39, 57),
    Sketcher.Constraint("Radius", 0, 0.999999),
    Sketcher.Constraint("DistanceX", 10, 1, 10, 2, 2.0),
    Sketcher.Constraint("DistanceX", 22, 1, 22, 2, 4.0),
    Sketcher.Constraint("Distance", 48, 4.0),
    Sketcher.Constraint("DistanceX", 1, 2, 1, 1, 2.4),
    Sketcher.Constraint("DistanceX", 13, 1, 13, 2, 7.8),
    Sketcher.Constraint("DistanceX", 18, 2, 18, 1, 1.5),
    Sketcher.Constraint("Distance", 46, 1.5),
    Sketcher.Constraint("DistanceX", 16, 1, 16, 2, 7.25),
    Sketcher.Constraint("DistanceX", 34, 1, 34, 2, 2.56),
    Sketcher.Constraint("DistanceY", 36, 1, 36, 2, 7.65),
    Sketcher.Constraint("DistanceY", 42, 1, 42, 2, 4.25),
    Sketcher.Constraint("Radius", 5, 0.999993),
    Sketcher.Constraint("DistanceX", 43, 2, 43, 1, 4.814141),
    Sketcher.Constraint("DistanceX", 49, 1, 49, 2, 2.19962),
    Sketcher.Constraint("DistanceX", 51, 1, 51, 2, 2.624811),
    Sketcher.Constraint("DistanceX", 53, 1, 53, 2, 4.793811),
    Sketcher.Constraint("DistanceY", 8, 2, 8, 1, 18.89975),
    Sketcher.Constraint("DistanceX", 4, 2, 4, 1, 9.953557),
    Sketcher.Constraint("DistanceX", 45, 2, 45, 1, 2.499716),
    Sketcher.Constraint("DistanceX", 47, 2, 47, 1, 2.295237),
    Sketcher.Constraint("DistanceY", 52, 2, 52, 1, 1.499995),
    Sketcher.Constraint("DistanceX", -1, 1, 0, 3, 18.99001),
    Sketcher.Constraint("DistanceY", -1, 1, 0, 3, 62.112022),
    Sketcher.Constraint("DistanceX", -1, 1, 5, 3, 5.636449),
    Sketcher.Constraint("DistanceY", -1, 1, 7, 3, 42.261772),
    Sketcher.Constraint("DistanceX", -1, 1, 44, 2, 11.763018),
])
pad2 = body.newObject("PartDesign::Pad", "Pad001")
pad2.Profile = sketch2
pad2.Length = 3

doc.recompute()
